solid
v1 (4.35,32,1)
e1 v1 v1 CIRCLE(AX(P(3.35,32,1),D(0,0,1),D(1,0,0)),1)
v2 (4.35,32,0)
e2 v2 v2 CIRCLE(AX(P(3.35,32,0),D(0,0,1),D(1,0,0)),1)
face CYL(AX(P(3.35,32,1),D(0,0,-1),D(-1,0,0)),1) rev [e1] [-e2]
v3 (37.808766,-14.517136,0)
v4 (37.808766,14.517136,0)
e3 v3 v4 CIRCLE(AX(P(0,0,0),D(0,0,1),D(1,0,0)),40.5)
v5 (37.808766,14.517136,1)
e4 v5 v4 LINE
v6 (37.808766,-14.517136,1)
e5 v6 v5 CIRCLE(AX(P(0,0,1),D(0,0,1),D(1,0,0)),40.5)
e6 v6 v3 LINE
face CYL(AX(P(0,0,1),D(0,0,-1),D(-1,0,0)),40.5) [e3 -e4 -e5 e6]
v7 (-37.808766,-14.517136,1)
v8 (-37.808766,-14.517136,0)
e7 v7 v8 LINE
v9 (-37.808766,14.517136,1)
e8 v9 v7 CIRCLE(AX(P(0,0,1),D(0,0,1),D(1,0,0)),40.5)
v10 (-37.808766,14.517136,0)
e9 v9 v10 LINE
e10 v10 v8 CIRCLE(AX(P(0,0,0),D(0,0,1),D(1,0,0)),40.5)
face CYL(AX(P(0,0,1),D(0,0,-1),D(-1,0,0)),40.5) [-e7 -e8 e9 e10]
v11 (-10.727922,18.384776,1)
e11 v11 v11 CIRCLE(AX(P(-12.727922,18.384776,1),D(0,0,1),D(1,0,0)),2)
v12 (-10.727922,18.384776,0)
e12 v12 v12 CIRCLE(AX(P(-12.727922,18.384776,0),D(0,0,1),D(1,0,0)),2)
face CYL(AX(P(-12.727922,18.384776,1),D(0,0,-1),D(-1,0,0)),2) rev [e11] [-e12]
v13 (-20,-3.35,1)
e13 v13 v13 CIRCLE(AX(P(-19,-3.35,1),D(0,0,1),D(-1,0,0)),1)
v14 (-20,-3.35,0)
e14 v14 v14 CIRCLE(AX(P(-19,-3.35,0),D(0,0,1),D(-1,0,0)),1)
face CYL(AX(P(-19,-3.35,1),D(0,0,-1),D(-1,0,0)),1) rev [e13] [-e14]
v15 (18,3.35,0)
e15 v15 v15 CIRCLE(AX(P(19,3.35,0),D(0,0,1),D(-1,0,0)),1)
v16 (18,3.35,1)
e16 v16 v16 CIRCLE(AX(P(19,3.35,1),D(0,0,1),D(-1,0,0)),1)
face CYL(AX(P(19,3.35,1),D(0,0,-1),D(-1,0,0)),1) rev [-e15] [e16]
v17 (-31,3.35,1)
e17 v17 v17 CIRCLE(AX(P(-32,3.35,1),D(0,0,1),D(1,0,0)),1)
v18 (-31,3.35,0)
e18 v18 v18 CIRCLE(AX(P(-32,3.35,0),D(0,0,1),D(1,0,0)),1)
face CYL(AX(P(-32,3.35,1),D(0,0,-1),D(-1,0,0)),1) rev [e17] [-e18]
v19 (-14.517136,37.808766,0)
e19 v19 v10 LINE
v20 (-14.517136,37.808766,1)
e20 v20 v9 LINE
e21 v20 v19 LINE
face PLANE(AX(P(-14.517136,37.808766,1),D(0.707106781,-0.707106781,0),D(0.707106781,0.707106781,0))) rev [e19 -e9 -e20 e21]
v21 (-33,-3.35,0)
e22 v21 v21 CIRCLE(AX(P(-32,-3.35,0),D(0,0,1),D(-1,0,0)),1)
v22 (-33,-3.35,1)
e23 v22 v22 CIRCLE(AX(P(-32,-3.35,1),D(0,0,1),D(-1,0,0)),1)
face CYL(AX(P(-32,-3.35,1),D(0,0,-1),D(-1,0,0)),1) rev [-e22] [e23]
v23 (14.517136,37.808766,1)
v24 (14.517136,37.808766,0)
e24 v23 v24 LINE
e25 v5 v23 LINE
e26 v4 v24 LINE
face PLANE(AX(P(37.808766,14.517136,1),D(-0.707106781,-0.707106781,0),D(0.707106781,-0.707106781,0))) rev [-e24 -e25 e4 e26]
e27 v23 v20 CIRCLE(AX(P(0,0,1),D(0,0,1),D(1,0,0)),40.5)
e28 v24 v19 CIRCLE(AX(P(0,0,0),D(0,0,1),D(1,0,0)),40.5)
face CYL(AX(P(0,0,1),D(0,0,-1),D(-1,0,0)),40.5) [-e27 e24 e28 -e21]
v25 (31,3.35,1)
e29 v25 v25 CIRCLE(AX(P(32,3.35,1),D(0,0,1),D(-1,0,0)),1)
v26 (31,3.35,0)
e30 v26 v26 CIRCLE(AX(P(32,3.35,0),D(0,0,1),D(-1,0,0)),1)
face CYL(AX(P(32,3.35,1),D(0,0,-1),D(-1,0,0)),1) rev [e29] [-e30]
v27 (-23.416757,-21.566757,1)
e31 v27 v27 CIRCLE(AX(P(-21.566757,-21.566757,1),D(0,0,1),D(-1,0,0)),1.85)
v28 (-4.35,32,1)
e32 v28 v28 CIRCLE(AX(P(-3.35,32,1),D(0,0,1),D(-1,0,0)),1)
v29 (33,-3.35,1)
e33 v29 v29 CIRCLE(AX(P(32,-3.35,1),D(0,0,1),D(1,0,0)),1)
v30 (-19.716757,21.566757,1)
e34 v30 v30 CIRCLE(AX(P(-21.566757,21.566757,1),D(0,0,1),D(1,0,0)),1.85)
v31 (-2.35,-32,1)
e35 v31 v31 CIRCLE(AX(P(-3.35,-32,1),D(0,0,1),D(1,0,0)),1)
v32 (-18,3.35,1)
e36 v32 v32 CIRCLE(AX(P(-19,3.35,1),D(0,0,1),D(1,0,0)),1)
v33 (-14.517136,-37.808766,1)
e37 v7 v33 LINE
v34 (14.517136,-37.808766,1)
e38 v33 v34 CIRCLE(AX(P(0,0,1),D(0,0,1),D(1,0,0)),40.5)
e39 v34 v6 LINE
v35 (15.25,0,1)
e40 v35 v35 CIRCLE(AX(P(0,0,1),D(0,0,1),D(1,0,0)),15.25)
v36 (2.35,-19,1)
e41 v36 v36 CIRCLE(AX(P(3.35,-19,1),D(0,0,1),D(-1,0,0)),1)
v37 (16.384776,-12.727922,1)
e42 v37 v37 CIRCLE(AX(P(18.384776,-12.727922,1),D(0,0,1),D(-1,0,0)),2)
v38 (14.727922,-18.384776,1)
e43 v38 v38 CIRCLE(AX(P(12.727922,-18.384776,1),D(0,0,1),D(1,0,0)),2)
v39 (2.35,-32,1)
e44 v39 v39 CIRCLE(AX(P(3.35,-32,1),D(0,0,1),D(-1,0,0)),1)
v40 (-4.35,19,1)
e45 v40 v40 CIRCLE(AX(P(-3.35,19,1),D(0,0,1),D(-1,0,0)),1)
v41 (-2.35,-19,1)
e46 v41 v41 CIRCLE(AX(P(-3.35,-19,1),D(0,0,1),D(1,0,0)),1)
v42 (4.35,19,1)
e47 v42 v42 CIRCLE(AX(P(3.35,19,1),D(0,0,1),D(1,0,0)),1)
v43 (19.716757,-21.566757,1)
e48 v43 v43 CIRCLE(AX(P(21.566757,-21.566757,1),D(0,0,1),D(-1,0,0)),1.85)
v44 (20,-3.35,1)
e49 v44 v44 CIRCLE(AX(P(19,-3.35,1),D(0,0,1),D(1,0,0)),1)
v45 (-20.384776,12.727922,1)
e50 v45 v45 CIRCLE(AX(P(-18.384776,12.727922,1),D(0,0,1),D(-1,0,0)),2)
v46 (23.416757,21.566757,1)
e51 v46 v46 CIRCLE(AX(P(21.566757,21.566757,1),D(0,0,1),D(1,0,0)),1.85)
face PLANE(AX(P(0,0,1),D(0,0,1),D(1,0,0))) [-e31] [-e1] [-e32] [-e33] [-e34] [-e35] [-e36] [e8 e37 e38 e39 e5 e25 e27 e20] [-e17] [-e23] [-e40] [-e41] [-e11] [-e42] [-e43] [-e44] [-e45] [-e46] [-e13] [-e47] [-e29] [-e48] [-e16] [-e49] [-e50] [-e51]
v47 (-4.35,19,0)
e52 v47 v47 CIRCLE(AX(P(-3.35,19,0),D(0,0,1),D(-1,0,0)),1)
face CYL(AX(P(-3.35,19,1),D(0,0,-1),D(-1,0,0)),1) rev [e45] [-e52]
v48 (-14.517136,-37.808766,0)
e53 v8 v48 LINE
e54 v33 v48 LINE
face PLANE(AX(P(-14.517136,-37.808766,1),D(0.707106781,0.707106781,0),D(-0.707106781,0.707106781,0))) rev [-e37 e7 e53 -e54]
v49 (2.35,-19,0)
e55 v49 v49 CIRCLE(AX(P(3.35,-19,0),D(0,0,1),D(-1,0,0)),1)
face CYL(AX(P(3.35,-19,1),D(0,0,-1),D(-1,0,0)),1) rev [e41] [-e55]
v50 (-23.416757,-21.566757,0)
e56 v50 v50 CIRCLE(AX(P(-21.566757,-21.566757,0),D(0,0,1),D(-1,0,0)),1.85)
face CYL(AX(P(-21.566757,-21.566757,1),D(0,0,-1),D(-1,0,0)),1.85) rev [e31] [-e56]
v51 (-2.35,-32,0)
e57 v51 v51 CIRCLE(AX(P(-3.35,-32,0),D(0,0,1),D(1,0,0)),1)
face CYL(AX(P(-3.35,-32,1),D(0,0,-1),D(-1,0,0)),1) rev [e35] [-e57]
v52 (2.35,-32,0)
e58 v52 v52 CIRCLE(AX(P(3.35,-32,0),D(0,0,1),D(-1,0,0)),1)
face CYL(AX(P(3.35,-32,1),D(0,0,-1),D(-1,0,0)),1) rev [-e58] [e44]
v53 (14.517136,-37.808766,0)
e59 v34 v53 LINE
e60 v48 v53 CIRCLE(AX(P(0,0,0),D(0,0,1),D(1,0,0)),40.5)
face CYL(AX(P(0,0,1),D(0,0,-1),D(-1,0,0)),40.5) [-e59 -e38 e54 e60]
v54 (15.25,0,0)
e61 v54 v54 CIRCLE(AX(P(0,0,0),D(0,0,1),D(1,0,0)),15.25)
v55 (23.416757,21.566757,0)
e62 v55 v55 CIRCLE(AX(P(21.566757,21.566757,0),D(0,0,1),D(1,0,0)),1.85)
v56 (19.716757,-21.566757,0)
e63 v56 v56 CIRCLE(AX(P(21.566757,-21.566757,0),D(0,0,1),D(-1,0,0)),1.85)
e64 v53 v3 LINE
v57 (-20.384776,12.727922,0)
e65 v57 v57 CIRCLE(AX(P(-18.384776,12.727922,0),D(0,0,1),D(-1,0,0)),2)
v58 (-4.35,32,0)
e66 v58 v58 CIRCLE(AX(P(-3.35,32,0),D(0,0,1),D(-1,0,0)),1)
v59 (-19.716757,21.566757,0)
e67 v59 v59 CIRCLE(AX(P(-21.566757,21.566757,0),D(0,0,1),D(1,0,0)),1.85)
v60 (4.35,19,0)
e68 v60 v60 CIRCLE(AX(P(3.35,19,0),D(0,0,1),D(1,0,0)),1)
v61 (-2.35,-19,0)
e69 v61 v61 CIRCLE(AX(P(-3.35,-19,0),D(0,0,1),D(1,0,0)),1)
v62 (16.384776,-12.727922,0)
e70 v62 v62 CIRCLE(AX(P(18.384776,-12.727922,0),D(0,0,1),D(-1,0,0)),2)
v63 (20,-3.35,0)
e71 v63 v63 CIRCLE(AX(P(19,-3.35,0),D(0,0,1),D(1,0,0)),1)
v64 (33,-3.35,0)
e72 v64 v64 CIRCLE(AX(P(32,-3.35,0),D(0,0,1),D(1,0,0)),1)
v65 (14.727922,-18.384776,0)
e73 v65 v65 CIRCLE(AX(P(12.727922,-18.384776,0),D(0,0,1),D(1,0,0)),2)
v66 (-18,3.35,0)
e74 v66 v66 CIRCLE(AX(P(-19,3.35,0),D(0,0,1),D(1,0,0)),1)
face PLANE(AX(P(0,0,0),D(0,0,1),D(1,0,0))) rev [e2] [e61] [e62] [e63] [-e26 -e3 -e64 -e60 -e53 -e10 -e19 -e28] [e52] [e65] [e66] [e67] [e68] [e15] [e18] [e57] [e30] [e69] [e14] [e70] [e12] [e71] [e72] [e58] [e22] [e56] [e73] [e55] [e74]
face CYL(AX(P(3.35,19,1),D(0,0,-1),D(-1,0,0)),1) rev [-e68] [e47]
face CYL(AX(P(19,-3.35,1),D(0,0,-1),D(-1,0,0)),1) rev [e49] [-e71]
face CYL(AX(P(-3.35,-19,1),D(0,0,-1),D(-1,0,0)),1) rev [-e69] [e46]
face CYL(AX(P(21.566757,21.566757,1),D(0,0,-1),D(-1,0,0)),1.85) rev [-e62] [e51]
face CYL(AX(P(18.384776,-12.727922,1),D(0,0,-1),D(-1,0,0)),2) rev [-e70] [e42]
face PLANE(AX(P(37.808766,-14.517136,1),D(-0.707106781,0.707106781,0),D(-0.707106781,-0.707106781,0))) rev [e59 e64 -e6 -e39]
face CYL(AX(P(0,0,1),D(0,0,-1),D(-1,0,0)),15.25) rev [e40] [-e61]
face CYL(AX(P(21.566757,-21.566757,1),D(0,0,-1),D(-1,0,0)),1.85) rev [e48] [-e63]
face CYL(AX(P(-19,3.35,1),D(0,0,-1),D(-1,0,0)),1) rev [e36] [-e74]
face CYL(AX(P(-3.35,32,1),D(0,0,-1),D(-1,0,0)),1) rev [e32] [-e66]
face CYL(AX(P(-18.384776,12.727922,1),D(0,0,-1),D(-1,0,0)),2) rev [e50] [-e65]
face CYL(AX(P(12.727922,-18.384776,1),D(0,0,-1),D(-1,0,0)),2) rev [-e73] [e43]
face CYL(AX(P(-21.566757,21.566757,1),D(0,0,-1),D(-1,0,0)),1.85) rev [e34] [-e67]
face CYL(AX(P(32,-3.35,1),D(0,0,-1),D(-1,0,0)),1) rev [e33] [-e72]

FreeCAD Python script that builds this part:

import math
import FreeCAD as App
import Part
import Sketcher
from FreeCAD import Vector

doc = App.newDocument("Part")
body = doc.addObject("PartDesign::Body", "Body")

# Sketch on XY plane
sketch1 = body.newObject("Sketcher::SketchObject", "Sketch")
sketch1.AttachmentSupport = (doc.getObject("XY_Plane"), [""])
sketch1.MapMode = "FlatFace"
sketch1.addGeometry(Part.LineSegment(Vector(37.8, 14.5, 0), Vector(14.5, 37.8, 0)), False)
sketch1.addGeometry(Part.ArcOfCircle(Part.Circle(Vector(0, 0, 0), Vector(0, 0, 1), 40.5), math.radians(69), math.radians(111)), False)
sketch1.addGeometry(Part.LineSegment(Vector(-14.5, 37.8, 0), Vector(-37.8, 14.5, 0)), False)
sketch1.addGeometry(Part.ArcOfCircle(Part.Circle(Vector(0, 0, 0), Vector(0, 0, 1), 40.5), math.radians(159), math.radians(201)), False)
sketch1.addGeometry(Part.LineSegment(Vector(-37.8, -14.5, 0), Vector(-14.5, -37.8, 0)), False)
sketch1.addGeometry(Part.ArcOfCircle(Part.Circle(Vector(0, 0, 0), Vector(0, 0, 1), 40.5), math.radians(-111), math.radians(-69)), False)
sketch1.addGeometry(Part.LineSegment(Vector(14.5, -37.8, 0), Vector(37.8, -14.5, 0)), False)
sketch1.addGeometry(Part.ArcOfCircle(Part.Circle(Vector(0, 0, 0), Vector(0, 0, 1), 40.5), math.radians(-21), math.radians(21)), False)
sketch1.addGeometry(Part.Circle(Vector(-21.6, -21.6, 0), Vector(0, 0, 1), 1.9), False)
sketch1.addGeometry(Part.Circle(Vector(-3.4, -32, 0), Vector(0, 0, 1), 1), False)
sketch1.addGeometry(Part.Circle(Vector(-3.4, -19, 0), Vector(0, 0, 1), 1), False)
sketch1.addGeometry(Part.Circle(Vector(-32, -3.4, 0), Vector(0, 0, 1), 1), False)
sketch1.addGeometry(Part.Circle(Vector(-19, -3.4, 0), Vector(0, 0, 1), 1), False)
sketch1.addGeometry(Part.Circle(Vector(3.4, -32, 0), Vector(0, 0, 1), 1), False)
sketch1.addGeometry(Part.Circle(Vector(3.4, -19, 0), Vector(0, 0, 1), 1), False)
sketch1.addGeometry(Part.Circle(Vector(12.7, -18.4, 0), Vector(0, 0, 1), 2), False)
sketch1.addGeometry(Part.Circle(Vector(21.6, -21.6, 0), Vector(0, 0, 1), 1.9), False)
sketch1.addGeometry(Part.Circle(Vector(18.4, -12.7, 0), Vector(0, 0, 1), 2), False)
sketch1.addGeometry(Part.Circle(Vector(19, -3.4, 0), Vector(0, 0, 1), 1), False)
sketch1.addGeometry(Part.Circle(Vector(32, -3.4, 0), Vector(0, 0, 1), 1), False)
sketch1.addGeometry(Part.Circle(Vector(-32, 3.4, 0), Vector(0, 0, 1), 1), False)
sketch1.addGeometry(Part.Circle(Vector(-19, 3.4, 0), Vector(0, 0, 1), 1), False)
sketch1.addGeometry(Part.Circle(Vector(-18.4, 12.7, 0), Vector(0, 0, 1), 2), False)
sketch1.addGeometry(Part.Circle(Vector(-21.6, 21.6, 0), Vector(0, 0, 1), 1.9), False)
sketch1.addGeometry(Part.Circle(Vector(-12.7, 18.4, 0), Vector(0, 0, 1), 2), False)
sketch1.addGeometry(Part.Circle(Vector(-3.4, 19, 0), Vector(0, 0, 1), 1), False)
sketch1.addGeometry(Part.Circle(Vector(-3.4, 32, 0), Vector(0, 0, 1), 1), False)
sketch1.addGeometry(Part.Circle(Vector(0, 0, 0), Vector(0, 0, 1), 15.2), False)
sketch1.addGeometry(Part.Circle(Vector(19, 3.4, 0), Vector(0, 0, 1), 1), False)
sketch1.addGeometry(Part.Circle(Vector(32, 3.4, 0), Vector(0, 0, 1), 1), False)
sketch1.addGeometry(Part.Circle(Vector(3.4, 19, 0), Vector(0, 0, 1), 1), False)
sketch1.addGeometry(Part.Circle(Vector(3.4, 32, 0), Vector(0, 0, 1), 1), False)
sketch1.addGeometry(Part.Circle(Vector(21.6, 21.6, 0), Vector(0, 0, 1), 1.9), False)
sketch1.addConstraint(Sketcher.Constraint("Coincident", 0, 2, 1, 1))
sketch1.addConstraint(Sketcher.Constraint("Coincident", 1, 2, 2, 1))
sketch1.addConstraint(Sketcher.Constraint("Coincident", 2, 2, 3, 1))
sketch1.addConstraint(Sketcher.Constraint("Coincident", 3, 2, 4, 1))
sketch1.addConstraint(Sketcher.Constraint("Coincident", 4, 2, 5, 1))
sketch1.addConstraint(Sketcher.Constraint("Coincident", 5, 2, 6, 1))
sketch1.addConstraint(Sketcher.Constraint("Coincident", 6, 2, 7, 1))
sketch1.addConstraint(Sketcher.Constraint("Coincident", 7, 2, 0, 1))
sketch1.addConstraint(Sketcher.Constraint("Coincident", 1, 3, -1, 1))
sketch1.addConstraint(Sketcher.Constraint("Coincident", 3, 3, -1, 1))
sketch1.addConstraint(Sketcher.Constraint("Coincident", 5, 3, -1, 1))
sketch1.addConstraint(Sketcher.Constraint("Coincident", 7, 3, -1, 1))
sketch1.addConstraint(Sketcher.Constraint("Coincident", 27, 3, -1, 1))
sketch1.addConstraint(Sketcher.Constraint("Equal", 1, 3))
sketch1.addConstraint(Sketcher.Constraint("Equal", 3, 5))
sketch1.addConstraint(Sketcher.Constraint("Equal", 5, 7))
sketch1.addConstraint(Sketcher.Constraint("Equal", 9, 10))
sketch1.addConstraint(Sketcher.Constraint("Equal", 10, 11))
sketch1.addConstraint(Sketcher.Constraint("Equal", 11, 12))
sketch1.addConstraint(Sketcher.Constraint("Equal", 12, 13))
sketch1.addConstraint(Sketcher.Constraint("Equal", 13, 14))
sketch1.addConstraint(Sketcher.Constraint("Equal", 8, 16))
sketch1.addConstraint(Sketcher.Constraint("Equal", 15, 17))
sketch1.addConstraint(Sketcher.Constraint("Equal", 14, 18))
sketch1.addConstraint(Sketcher.Constraint("Equal", 18, 19))
sketch1.addConstraint(Sketcher.Constraint("Equal", 19, 20))
sketch1.addConstraint(Sketcher.Constraint("Equal", 20, 21))
sketch1.addConstraint(Sketcher.Constraint("Equal", 17, 22))
sketch1.addConstraint(Sketcher.Constraint("Equal", 16, 23))
sketch1.addConstraint(Sketcher.Constraint("Equal", 22, 24))
sketch1.addConstraint(Sketcher.Constraint("Equal", 21, 25))
sketch1.addConstraint(Sketcher.Constraint("Equal", 25, 26))
sketch1.addConstraint(Sketcher.Constraint("Equal", 26, 28))
sketch1.addConstraint(Sketcher.Constraint("Equal", 28, 29))
sketch1.addConstraint(Sketcher.Constraint("Equal", 29, 30))
sketch1.addConstraint(Sketcher.Constraint("Equal", 30, 31))
sketch1.addConstraint(Sketcher.Constraint("Equal", 23, 32))
sketch1.addConstraint(Sketcher.Constraint("Symmetric", 19, 3, 20, 3, -1, 1))
sketch1.addConstraint(Sketcher.Constraint("Symmetric", 18, 3, 21, 3, -1, 1))
sketch1.addConstraint(Sketcher.Constraint("Symmetric", 17, 3, 22, 3, -1, 1))
sketch1.addConstraint(Sketcher.Constraint("Symmetric", 16, 3, 23, 3, -1, 1))
sketch1.addConstraint(Sketcher.Constraint("Symmetric", 15, 3, 24, 3, -1, 1))
sketch1.addConstraint(Sketcher.Constraint("Symmetric", 14, 3, 25, 3, -1, 1))
sketch1.addConstraint(Sketcher.Constraint("Symmetric", 13, 3, 26, 3, -1, 1))
sketch1.addConstraint(Sketcher.Constraint("Symmetric", 12, 3, 28, 3, -1, 1))
sketch1.addConstraint(Sketcher.Constraint("Symmetric", 11, 3, 29, 3, -1, 1))
sketch1.addConstraint(Sketcher.Constraint("Symmetric", 10, 3, 30, 3, -1, 1))
sketch1.addConstraint(Sketcher.Constraint("Symmetric", 9, 3, 31, 3, -1, 1))
sketch1.addConstraint(Sketcher.Constraint("Symmetric", 8, 3, 32, 3, -1, 1))
sketch1.addConstraint(Sketcher.Constraint("Symmetric", 9, 3, 13, 3, -2))
sketch1.addConstraint(Sketcher.Constraint("Symmetric", 10, 3, 14, 3, -2))
sketch1.addConstraint(Sketcher.Constraint("Symmetric", 8, 3, 16, 3, -2))
sketch1.addConstraint(Sketcher.Constraint("Symmetric", 12, 3, 18, 3, -2))
sketch1.addConstraint(Sketcher.Constraint("Symmetric", 11, 3, 19, 3, -2))
sketch1.addConstraint(Sketcher.Constraint("Perpendicular", 0, 2))
sketch1.addConstraint(Sketcher.Constraint("Perpendicular", 2, 4))
sketch1.addConstraint(Sketcher.Constraint("Perpendicular", 4, 6))
sketch1.addConstraint(Sketcher.Constraint("Horizontal", 11, 3, 12, 3))
sketch1.addConstraint(Sketcher.Constraint("Horizontal", 0, 2, 1, 2))
sketch1.addConstraint(Sketcher.Constraint("Horizontal", 4, 2, 5, 2))
sketch1.addConstraint(Sketcher.Constraint("Horizontal", 3, 2, 6, 2))
sketch1.addConstraint(Sketcher.Constraint("Vertical", 9, 3, 10, 3))
sketch1.addConstraint(Sketcher.Constraint("Vertical", 2, 2, 3, 2))
sketch1.addConstraint(Sketcher.Constraint("Diameter", 9, 2.0))
sketch1.addConstraint(Sketcher.Constraint("Diameter", 15, 4.0))
sketch1.addConstraint(Sketcher.Constraint("Diameter", 8, 3.7))
sketch1.addConstraint(Sketcher.Constraint("Diameter", 27, 30.5))
sketch1.addConstraint(Sketcher.Constraint("Radius", 1, 40.5))
sketch1.addConstraint(Sketcher.Constraint("DistanceY", 9, 3, -1, 1, 32.0))
sketch1.addConstraint(Sketcher.Constraint("DistanceY", 10, 3, -1, 1, 19.0))
sketch1.addConstraint(Sketcher.Constraint("DistanceX", 11, 3, -1, 1, 32.0))
sketch1.addConstraint(Sketcher.Constraint("DistanceX", 12, 3, -1, 1, 19.0))
sketch1.addConstraint(Sketcher.Constraint("DistanceX", 9, 3, 13, 3, 6.7))
sketch1.addConstraint(Sketcher.Constraint("DistanceY", 11, 3, 20, 3, 6.7))
sketch1.addConstraint(Sketcher.Constraint("Distance", 0, 32.939338))
sketch1.addConstraint(Sketcher.Constraint("DistanceY", 16, 3, 15, 3, 3.181981))
sketch1.addConstraint(Sketcher.Constraint("DistanceX", 17, 3, 16, 3, 3.181981))
sketch1.addConstraint(Sketcher.Constraint("DistanceX", 0, 2, 32, 3, 7.049621))
sketch1.addConstraint(Sketcher.Constraint("DistanceY", 32, 3, 0, 2, 16.242009))
sketch1.addConstraint(Sketcher.Constraint("DistanceX", -1, 1, 15, 3, 12.727922))
sketch1.addConstraint(Sketcher.Constraint("DistanceY", 17, 3, -1, 1, 12.727922))
pad1 = body.newObject("PartDesign::Pad", "Pad")
pad1.Profile = sketch1
pad1.Length = 1

doc.recompute()
